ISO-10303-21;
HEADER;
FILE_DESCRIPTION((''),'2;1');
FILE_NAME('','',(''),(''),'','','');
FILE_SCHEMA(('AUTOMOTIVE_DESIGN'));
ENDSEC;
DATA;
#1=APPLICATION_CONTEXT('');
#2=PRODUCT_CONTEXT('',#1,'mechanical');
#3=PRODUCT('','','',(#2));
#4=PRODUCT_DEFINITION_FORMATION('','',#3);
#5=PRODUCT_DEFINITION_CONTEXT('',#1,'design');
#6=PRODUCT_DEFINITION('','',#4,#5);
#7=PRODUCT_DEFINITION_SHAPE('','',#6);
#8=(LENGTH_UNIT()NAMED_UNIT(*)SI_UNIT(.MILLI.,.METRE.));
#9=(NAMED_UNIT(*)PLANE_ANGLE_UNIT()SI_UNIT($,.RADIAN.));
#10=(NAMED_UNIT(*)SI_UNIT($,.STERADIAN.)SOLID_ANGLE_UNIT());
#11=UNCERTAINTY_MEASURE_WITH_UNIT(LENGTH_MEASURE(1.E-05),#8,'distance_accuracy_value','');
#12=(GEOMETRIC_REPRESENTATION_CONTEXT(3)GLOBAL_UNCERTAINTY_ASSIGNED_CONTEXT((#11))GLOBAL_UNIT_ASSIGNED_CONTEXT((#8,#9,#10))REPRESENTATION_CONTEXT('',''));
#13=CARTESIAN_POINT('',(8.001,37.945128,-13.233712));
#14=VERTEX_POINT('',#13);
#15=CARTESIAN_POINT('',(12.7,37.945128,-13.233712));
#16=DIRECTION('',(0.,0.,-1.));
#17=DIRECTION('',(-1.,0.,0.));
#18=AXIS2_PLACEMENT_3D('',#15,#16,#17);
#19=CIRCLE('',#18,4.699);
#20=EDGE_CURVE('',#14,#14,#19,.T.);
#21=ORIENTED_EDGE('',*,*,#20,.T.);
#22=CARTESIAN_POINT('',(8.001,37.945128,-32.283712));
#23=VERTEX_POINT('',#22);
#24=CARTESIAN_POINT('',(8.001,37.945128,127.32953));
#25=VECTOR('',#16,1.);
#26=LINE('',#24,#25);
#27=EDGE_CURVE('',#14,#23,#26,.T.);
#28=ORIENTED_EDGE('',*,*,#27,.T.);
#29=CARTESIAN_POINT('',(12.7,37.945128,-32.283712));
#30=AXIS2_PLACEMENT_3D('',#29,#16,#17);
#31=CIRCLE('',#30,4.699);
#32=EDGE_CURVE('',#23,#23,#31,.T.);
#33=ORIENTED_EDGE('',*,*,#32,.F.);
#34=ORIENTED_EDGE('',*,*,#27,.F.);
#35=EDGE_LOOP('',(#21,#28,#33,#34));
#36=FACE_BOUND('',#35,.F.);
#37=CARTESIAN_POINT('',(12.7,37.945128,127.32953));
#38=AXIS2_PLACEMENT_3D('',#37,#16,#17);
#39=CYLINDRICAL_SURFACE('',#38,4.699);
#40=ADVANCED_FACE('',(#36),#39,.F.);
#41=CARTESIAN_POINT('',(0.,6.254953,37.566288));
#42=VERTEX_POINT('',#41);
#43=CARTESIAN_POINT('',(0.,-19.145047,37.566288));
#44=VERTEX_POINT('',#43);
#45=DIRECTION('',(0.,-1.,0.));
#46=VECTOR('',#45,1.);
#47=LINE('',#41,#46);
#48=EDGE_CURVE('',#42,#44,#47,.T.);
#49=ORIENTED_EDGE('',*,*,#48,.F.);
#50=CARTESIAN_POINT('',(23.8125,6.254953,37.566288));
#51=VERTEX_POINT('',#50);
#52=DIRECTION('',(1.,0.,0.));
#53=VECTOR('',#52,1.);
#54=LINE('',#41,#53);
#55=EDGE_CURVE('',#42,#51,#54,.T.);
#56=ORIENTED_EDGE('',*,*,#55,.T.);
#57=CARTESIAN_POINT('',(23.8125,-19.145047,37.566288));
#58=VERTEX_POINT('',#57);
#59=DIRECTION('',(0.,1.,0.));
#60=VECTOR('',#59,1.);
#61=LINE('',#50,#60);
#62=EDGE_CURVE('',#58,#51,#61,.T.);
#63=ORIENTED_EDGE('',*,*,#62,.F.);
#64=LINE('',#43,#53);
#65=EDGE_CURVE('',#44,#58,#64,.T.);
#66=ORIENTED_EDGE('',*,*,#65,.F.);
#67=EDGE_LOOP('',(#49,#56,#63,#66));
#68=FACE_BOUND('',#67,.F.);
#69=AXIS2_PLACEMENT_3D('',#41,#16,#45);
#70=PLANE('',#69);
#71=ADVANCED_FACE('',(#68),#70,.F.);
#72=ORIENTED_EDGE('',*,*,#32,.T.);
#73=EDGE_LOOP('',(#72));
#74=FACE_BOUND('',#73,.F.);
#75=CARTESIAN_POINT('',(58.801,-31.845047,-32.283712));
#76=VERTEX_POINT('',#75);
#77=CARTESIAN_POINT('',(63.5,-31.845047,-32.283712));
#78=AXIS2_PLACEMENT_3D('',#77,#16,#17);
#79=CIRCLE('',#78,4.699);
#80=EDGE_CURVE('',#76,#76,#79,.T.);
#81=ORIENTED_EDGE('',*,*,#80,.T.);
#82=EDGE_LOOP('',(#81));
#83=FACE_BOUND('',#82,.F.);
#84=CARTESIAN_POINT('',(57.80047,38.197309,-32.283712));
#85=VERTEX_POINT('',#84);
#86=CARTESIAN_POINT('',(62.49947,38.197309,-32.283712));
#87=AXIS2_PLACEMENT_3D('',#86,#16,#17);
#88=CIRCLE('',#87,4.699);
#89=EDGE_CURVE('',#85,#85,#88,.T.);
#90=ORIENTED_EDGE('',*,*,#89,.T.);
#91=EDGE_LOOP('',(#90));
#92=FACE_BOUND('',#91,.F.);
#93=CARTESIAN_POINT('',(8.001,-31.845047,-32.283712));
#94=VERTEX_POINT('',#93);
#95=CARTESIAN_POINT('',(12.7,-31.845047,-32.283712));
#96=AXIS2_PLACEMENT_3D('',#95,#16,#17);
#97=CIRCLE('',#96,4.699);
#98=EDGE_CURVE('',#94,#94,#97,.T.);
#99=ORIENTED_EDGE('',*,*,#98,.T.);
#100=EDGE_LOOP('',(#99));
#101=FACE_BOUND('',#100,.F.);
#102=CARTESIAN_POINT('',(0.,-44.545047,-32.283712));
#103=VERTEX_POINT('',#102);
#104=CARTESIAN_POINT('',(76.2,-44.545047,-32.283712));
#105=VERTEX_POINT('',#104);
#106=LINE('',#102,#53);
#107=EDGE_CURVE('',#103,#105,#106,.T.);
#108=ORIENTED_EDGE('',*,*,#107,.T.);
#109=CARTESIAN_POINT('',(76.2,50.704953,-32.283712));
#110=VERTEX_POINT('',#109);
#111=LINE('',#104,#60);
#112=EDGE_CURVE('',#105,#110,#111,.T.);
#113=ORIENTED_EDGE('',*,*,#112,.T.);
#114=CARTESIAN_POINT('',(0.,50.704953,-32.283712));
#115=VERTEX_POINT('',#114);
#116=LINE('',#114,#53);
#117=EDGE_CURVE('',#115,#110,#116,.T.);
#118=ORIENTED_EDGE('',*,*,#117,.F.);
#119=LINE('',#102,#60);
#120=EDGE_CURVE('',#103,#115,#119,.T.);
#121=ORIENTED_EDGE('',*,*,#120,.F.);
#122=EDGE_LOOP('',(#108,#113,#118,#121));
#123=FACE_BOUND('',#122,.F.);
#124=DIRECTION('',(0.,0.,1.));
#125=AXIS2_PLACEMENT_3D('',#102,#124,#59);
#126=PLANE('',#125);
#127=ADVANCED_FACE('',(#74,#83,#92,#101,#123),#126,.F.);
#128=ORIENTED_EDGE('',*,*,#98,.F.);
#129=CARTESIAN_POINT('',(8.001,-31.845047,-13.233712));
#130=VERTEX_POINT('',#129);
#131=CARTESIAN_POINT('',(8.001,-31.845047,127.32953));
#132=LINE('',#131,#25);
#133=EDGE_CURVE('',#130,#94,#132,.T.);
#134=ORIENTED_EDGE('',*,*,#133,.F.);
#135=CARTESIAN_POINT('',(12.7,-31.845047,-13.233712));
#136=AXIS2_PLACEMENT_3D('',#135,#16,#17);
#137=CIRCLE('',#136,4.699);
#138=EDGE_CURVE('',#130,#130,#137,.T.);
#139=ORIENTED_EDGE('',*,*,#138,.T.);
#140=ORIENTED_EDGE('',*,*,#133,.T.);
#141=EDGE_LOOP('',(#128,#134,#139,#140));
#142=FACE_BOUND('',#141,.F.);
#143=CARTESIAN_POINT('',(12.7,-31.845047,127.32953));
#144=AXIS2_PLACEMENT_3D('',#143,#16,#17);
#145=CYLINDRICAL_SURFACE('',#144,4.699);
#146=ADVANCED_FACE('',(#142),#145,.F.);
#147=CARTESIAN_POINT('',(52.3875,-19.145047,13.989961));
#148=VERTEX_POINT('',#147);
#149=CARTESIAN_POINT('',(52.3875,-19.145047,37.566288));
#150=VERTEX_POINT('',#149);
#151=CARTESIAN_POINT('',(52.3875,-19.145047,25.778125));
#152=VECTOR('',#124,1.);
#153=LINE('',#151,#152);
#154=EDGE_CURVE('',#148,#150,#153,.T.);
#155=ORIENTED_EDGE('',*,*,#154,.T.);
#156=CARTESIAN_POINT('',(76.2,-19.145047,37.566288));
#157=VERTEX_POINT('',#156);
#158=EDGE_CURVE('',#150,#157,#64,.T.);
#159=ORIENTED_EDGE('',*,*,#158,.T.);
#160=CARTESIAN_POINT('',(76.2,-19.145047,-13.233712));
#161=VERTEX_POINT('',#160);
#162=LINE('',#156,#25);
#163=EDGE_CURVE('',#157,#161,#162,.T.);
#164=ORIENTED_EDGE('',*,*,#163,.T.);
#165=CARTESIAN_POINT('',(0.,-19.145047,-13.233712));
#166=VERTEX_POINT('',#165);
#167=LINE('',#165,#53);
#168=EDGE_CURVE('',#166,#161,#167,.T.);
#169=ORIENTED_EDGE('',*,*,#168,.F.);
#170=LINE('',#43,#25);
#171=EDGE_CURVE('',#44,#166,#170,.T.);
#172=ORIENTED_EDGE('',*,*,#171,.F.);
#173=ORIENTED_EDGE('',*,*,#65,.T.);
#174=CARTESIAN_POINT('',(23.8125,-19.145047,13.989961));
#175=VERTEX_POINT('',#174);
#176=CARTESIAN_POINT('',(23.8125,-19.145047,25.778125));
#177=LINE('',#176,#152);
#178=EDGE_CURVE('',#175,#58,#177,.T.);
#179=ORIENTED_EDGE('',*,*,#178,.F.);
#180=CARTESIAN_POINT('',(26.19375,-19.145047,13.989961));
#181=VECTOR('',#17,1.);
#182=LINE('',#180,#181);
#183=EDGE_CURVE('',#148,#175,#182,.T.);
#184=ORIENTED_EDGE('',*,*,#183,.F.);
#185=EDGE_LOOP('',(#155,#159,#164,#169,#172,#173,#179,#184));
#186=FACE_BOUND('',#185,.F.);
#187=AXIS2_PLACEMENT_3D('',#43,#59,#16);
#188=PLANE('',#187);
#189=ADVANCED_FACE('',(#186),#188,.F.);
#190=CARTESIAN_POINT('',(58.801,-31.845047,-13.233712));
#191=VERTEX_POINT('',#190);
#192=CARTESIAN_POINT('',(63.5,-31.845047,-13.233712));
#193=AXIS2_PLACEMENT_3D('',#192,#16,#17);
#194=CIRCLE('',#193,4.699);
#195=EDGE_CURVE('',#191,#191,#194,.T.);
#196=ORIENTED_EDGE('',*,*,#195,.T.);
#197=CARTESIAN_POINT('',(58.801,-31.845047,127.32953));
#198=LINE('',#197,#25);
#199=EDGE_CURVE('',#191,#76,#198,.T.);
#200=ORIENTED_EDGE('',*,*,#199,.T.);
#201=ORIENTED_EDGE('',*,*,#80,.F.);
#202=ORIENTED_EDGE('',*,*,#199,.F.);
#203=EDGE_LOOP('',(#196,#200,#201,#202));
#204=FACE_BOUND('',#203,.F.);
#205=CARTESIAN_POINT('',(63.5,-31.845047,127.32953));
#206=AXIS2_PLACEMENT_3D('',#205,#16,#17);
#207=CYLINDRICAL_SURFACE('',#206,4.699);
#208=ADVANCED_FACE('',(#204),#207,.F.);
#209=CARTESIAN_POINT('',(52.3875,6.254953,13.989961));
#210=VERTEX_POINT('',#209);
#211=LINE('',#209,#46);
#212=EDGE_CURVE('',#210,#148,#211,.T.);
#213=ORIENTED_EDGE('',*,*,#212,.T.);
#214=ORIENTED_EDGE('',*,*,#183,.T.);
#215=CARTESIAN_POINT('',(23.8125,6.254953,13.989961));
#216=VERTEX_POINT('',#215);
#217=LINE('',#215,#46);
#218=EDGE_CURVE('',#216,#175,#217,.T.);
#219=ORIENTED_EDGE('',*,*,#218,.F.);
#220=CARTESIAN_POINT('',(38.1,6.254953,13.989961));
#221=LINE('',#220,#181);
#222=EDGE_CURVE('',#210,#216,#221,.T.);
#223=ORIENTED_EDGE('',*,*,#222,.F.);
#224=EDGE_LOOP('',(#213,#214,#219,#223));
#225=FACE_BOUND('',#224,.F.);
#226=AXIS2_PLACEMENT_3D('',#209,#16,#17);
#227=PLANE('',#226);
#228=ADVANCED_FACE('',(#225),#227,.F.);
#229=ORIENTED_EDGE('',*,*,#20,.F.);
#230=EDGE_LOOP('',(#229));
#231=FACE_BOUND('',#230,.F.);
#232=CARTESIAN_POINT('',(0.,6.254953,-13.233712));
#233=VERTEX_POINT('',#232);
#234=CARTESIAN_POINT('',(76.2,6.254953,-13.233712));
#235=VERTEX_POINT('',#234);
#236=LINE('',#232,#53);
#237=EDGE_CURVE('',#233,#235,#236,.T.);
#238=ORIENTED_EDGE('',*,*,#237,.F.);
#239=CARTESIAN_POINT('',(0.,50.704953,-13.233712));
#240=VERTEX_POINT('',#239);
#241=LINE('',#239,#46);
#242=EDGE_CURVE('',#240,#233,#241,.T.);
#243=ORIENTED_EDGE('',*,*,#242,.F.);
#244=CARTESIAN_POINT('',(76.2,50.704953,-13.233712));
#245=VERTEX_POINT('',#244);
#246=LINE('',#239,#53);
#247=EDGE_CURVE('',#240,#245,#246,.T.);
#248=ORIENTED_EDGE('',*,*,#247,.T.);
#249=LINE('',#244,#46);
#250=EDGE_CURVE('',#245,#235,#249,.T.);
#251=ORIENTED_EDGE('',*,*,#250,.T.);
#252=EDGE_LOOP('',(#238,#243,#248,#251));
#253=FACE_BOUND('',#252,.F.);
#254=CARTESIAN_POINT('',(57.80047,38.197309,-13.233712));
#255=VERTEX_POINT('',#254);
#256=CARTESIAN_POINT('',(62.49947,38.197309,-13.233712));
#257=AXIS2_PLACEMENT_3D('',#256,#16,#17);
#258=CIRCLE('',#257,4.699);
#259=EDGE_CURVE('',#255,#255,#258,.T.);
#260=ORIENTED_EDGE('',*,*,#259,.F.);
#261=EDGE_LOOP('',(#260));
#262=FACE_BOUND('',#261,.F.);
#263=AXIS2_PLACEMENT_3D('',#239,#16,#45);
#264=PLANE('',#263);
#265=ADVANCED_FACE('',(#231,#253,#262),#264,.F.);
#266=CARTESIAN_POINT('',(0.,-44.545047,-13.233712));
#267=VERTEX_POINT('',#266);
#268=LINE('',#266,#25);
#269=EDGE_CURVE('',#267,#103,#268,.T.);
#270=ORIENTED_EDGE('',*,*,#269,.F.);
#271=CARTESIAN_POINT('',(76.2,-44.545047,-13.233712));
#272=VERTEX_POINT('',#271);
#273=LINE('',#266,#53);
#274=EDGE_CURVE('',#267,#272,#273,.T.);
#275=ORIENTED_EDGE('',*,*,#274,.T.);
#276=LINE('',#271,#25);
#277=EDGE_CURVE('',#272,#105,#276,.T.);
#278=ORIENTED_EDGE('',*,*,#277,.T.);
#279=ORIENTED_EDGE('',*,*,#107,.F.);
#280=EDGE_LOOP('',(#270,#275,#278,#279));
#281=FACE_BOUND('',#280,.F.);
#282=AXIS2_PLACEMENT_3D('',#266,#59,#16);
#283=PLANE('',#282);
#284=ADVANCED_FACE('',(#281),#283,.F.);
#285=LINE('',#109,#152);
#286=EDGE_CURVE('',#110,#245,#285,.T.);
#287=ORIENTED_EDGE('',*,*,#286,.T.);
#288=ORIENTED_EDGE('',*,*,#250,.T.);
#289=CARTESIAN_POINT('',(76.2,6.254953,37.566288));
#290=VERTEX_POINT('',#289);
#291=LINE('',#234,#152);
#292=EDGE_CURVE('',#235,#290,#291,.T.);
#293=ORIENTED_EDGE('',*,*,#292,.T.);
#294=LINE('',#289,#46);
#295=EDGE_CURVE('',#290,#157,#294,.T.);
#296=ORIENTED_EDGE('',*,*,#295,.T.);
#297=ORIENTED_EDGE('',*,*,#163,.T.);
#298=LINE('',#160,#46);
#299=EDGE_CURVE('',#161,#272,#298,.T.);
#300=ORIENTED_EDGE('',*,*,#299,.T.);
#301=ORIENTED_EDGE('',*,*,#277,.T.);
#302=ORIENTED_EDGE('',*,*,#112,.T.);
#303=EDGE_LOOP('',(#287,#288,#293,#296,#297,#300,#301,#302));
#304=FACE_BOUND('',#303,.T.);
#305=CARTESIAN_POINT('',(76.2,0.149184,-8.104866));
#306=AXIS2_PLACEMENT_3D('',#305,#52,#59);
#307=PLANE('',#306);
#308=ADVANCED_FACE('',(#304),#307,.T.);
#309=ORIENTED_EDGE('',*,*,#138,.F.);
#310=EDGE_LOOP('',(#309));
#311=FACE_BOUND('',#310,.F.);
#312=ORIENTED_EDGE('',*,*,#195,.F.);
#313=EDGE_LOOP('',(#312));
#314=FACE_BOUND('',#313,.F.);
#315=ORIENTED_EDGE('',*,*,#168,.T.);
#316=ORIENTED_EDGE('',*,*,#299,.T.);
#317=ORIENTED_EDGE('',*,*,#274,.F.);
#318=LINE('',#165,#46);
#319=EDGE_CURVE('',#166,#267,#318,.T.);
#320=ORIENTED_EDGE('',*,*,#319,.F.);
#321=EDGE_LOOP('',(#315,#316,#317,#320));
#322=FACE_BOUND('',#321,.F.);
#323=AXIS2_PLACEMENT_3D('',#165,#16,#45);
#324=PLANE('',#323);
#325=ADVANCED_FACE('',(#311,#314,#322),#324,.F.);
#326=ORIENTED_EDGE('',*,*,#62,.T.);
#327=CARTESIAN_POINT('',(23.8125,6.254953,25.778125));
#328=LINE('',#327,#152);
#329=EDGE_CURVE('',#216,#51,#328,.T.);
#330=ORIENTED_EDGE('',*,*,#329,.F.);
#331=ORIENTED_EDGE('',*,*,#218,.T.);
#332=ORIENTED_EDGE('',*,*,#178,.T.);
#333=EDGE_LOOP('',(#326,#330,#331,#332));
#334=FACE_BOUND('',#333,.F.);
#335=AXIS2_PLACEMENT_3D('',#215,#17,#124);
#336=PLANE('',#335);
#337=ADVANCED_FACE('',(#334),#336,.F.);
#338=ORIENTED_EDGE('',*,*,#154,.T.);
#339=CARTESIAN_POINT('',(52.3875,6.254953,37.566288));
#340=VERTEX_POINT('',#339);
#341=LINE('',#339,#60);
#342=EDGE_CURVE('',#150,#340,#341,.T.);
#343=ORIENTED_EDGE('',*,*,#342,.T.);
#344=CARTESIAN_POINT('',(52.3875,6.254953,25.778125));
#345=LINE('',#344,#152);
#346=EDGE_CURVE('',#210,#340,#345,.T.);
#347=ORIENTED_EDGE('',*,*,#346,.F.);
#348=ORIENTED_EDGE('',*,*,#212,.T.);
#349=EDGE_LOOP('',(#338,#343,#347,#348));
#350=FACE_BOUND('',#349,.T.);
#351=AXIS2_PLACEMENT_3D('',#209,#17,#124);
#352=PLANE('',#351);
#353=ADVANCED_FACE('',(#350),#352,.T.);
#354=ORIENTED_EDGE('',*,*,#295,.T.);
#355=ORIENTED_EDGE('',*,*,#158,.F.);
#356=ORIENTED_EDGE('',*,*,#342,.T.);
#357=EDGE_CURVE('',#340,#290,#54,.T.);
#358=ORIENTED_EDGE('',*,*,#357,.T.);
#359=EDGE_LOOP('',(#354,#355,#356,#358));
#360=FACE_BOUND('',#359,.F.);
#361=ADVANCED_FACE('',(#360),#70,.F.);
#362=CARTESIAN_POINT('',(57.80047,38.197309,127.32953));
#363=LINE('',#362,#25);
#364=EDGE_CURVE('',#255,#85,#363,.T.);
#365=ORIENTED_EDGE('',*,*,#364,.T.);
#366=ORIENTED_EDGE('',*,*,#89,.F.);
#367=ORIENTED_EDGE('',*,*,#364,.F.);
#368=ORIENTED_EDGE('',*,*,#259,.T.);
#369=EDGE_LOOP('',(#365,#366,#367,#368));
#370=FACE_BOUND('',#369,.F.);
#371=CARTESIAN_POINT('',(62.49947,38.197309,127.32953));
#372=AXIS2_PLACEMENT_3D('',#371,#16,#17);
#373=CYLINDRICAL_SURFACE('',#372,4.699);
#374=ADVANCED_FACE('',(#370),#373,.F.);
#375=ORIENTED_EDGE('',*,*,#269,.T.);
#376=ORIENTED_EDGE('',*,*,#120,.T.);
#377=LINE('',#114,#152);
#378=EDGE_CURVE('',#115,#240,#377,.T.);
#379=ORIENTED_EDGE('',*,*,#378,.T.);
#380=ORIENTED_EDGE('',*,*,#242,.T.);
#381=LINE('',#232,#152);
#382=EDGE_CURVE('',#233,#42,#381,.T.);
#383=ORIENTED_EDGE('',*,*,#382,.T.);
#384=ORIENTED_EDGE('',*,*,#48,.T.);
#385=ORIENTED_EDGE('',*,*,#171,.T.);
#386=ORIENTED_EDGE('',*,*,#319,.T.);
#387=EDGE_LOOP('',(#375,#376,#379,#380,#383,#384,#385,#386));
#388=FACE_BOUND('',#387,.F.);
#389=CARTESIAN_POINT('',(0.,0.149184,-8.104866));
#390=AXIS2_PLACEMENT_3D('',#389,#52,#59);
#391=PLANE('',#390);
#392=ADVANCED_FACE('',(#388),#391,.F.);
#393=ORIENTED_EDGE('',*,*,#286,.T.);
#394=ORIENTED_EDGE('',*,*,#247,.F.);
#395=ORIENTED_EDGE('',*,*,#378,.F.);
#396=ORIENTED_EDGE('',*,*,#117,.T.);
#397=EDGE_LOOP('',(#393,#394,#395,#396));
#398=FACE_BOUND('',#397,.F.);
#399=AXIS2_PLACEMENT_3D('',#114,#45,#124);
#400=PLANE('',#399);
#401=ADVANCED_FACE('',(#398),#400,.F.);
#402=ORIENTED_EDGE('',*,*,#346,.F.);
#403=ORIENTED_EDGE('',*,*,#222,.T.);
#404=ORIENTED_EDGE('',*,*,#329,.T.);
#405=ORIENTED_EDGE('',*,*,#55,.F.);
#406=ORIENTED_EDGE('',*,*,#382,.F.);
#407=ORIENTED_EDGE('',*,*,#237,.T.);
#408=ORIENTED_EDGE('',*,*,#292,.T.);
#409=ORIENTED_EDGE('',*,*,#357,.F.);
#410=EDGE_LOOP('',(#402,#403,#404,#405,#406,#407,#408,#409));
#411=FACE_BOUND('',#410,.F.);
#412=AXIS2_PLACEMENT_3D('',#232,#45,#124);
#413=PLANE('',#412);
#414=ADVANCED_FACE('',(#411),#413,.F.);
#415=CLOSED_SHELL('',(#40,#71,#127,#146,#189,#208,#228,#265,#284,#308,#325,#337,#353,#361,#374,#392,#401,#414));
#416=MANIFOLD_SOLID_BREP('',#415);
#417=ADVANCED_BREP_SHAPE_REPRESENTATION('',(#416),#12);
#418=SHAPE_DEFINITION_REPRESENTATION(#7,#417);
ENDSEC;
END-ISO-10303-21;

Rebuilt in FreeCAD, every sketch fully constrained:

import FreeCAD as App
import Part
import Sketcher
Q = App.Units.Quantity


def add_polygon(sketch, points):
    """Adds a closed chain of lines whose ends are joined by coincident constraints."""
    first, n = sketch.GeometryCount, len(points)
    for a, b in zip(points, points[1:] + points[:1]):
        sketch.addGeometry(Part.LineSegment(App.Vector(*a, 0), App.Vector(*b, 0)), False)
    for i in range(n):
        sketch.addConstraint(Sketcher.Constraint("Coincident", first + i, 2, first + (i + 1) % n, 1))

doc = App.newDocument("Part")
body = doc.addObject("PartDesign::Body", "Body")

sketch1 = doc.addObject("Sketcher::SketchObject", "Sketch")
body.addObject(sketch1)
sketch1.AttachmentSupport = (doc.YZ_Plane, [""])
sketch1.MapMode = "FlatFace"
add_polygon(sketch1, [(-45, -32), (51, -32), (51, -13), (6, -13), (6, 38), (-19, 38), (-19, -13), (-45, -13)])
sketch1.addConstraint([
    Sketcher.Constraint("Horizontal", 0),
    Sketcher.Constraint("Vertical", 1),
    Sketcher.Constraint("Horizontal", 2),
    Sketcher.Constraint("Vertical", 3),
    Sketcher.Constraint("Horizontal", 4),
    Sketcher.Constraint("Vertical", 5),
    Sketcher.Constraint("Horizontal", 6),
    Sketcher.Constraint("Vertical", 7),
    Sketcher.Constraint("Horizontal", 2, 2, 5, 2),
    Sketcher.Constraint("Equal", 4, 6),
    Sketcher.Constraint("DistanceX", 4, 2, 4, 1, Q("1 in")),
    Sketcher.Constraint("DistanceY", 3, 1, 3, 2, Q("2 in")),
    Sketcher.Constraint("DistanceX", 0, 1, 0, 2, Q("3.75 in")),
    Sketcher.Constraint("DistanceY", 1, 1, 1, 2, Q("0.75 in")),
    Sketcher.Constraint("DistanceX", -1, 1, 0, 2, 50.704953),
    Sketcher.Constraint("DistanceY", 0, 2, -1, 1, 32.283712),
])
pad1 = doc.addObject("PartDesign::Pad", "Pad")
body.addObject(pad1)
pad1.Profile = sketch1
pad1.Length = Q("3 in")

sketch2 = doc.addObject("Sketcher::SketchObject", "Sketch001")
body.addObject(sketch2)
sketch2.AttachmentSupport = (doc.XZ_Plane, [""])
sketch2.MapMode = "FlatFace"
sketch2.AttachmentOffset = App.Placement(App.Vector(0, 0, -6.254953), App.Rotation())
add_polygon(sketch2, [(52, 38), (52, 14), (24, 14), (24, 38)])
sketch2.addConstraint([
    Sketcher.Constraint("Vertical", 0),
    Sketcher.Constraint("Horizontal", 1),
    Sketcher.Constraint("Vertical", 2),
    Sketcher.Constraint("Horizontal", 3),
    Sketcher.Constraint("DistanceX", 1, 2, 1, 1, Q("1.125 in")),
    Sketcher.Constraint("DistanceX", -1, 1, 0, 2, Q("2.0625 in")),
    Sketcher.Constraint("DistanceY", 0, 2, 0, 1, 23.576327),
    Sketcher.Constraint("DistanceY", -1, 1, 0, 2, 13.989961),
])
pocket1 = doc.addObject("PartDesign::Pocket", "Pocket")
body.addObject(pocket1)
pocket1.Profile = sketch2
pocket1.Type = "ThroughAll"
pocket1.Reversed = True

sketch3 = doc.addObject("Sketcher::SketchObject", "Sketch002")
body.addObject(sketch3)
sketch3.AttachmentSupport = (doc.XY_Plane, [""])
sketch3.MapMode = "FlatFace"
sketch3.AttachmentOffset = App.Placement(App.Vector(0, 0, -13.233712), App.Rotation())
sketch3.addGeometry(Part.Circle(App.Vector(12.7, 37.9, 0), App.Vector(0, 0, 1), 4.7), False)
sketch3.addConstraint([
    Sketcher.Constraint("Diameter", 0, Q("0.37 in")),
    Sketcher.Constraint("DistanceX", -1, 1, 0, 3, Q("0.5 in")),
    Sketcher.Constraint("DistanceY", -1, 1, 0, 3, 37.945128),
])
doc.recompute()
hole = doc.addObject("PartDesign::Hole", "Hole")
body.addObject(hole)
hole.Profile = sketch3
hole.ThreadType = "None"
hole.Diameter = Q("0.37 in")
hole.DepthType = "ThroughAll"

sketch4 = doc.addObject("Sketcher::SketchObject", "Sketch003")
body.addObject(sketch4)
sketch4.AttachmentSupport = (doc.XY_Plane, [""])
sketch4.MapMode = "FlatFace"
sketch4.AttachmentOffset = App.Placement(App.Vector(0, 0, -13.233712), App.Rotation())
sketch4.addGeometry(Part.Circle(App.Vector(62.5, 38.2, 0), App.Vector(0, 0, 1), 4.7), False)
sketch4.addConstraint([
    Sketcher.Constraint("Diameter", 0, Q("0.37 in")),
    Sketcher.Constraint("DistanceX", -1, 1, 0, 3, 62.49947),
    Sketcher.Constraint("DistanceY", -1, 1, 0, 3, 38.197309),
])
doc.recompute()
hole2 = doc.addObject("PartDesign::Hole", "Hole001")
body.addObject(hole2)
hole2.Profile = sketch4
hole2.ThreadType = "None"
hole2.Diameter = Q("0.37 in")
hole2.DepthType = "ThroughAll"

sketch5 = doc.addObject("Sketcher::SketchObject", "Sketch004")
body.addObject(sketch5)
sketch5.AttachmentSupport = (doc.XY_Plane, [""])
sketch5.MapMode = "FlatFace"
sketch5.AttachmentOffset = App.Placement(App.Vector(0, 0, -13.233712), App.Rotation())
sketch5.addGeometry([
    Part.Circle(App.Vector(12.7, -31.8, 0), App.Vector(0, 0, 1), 4.7),
    Part.Circle(App.Vector(63.5, -31.8, 0), App.Vector(0, 0, 1), 4.7),
], False)
sketch5.addConstraint([
    Sketcher.Constraint("Equal", 0, 1),
    Sketcher.Constraint("Horizontal", 0, 3, 1, 3),
    Sketcher.Constraint("Diameter", 0, Q("0.37 in")),
    Sketcher.Constraint("DistanceX", 0, 3, 1, 3, Q("2 in")),
    Sketcher.Constraint("DistanceX", -1, 1, 0, 3, Q("0.5 in")),
    Sketcher.Constraint("DistanceY", 0, 3, -1, 1, 31.845047),
])
doc.recompute()
hole3 = doc.addObject("PartDesign::Hole", "Hole002")
body.addObject(hole3)
hole3.Profile = sketch5
hole3.ThreadType = "None"
hole3.Diameter = Q("0.37 in")
hole3.DepthType = "ThroughAll"

doc.recompute()
